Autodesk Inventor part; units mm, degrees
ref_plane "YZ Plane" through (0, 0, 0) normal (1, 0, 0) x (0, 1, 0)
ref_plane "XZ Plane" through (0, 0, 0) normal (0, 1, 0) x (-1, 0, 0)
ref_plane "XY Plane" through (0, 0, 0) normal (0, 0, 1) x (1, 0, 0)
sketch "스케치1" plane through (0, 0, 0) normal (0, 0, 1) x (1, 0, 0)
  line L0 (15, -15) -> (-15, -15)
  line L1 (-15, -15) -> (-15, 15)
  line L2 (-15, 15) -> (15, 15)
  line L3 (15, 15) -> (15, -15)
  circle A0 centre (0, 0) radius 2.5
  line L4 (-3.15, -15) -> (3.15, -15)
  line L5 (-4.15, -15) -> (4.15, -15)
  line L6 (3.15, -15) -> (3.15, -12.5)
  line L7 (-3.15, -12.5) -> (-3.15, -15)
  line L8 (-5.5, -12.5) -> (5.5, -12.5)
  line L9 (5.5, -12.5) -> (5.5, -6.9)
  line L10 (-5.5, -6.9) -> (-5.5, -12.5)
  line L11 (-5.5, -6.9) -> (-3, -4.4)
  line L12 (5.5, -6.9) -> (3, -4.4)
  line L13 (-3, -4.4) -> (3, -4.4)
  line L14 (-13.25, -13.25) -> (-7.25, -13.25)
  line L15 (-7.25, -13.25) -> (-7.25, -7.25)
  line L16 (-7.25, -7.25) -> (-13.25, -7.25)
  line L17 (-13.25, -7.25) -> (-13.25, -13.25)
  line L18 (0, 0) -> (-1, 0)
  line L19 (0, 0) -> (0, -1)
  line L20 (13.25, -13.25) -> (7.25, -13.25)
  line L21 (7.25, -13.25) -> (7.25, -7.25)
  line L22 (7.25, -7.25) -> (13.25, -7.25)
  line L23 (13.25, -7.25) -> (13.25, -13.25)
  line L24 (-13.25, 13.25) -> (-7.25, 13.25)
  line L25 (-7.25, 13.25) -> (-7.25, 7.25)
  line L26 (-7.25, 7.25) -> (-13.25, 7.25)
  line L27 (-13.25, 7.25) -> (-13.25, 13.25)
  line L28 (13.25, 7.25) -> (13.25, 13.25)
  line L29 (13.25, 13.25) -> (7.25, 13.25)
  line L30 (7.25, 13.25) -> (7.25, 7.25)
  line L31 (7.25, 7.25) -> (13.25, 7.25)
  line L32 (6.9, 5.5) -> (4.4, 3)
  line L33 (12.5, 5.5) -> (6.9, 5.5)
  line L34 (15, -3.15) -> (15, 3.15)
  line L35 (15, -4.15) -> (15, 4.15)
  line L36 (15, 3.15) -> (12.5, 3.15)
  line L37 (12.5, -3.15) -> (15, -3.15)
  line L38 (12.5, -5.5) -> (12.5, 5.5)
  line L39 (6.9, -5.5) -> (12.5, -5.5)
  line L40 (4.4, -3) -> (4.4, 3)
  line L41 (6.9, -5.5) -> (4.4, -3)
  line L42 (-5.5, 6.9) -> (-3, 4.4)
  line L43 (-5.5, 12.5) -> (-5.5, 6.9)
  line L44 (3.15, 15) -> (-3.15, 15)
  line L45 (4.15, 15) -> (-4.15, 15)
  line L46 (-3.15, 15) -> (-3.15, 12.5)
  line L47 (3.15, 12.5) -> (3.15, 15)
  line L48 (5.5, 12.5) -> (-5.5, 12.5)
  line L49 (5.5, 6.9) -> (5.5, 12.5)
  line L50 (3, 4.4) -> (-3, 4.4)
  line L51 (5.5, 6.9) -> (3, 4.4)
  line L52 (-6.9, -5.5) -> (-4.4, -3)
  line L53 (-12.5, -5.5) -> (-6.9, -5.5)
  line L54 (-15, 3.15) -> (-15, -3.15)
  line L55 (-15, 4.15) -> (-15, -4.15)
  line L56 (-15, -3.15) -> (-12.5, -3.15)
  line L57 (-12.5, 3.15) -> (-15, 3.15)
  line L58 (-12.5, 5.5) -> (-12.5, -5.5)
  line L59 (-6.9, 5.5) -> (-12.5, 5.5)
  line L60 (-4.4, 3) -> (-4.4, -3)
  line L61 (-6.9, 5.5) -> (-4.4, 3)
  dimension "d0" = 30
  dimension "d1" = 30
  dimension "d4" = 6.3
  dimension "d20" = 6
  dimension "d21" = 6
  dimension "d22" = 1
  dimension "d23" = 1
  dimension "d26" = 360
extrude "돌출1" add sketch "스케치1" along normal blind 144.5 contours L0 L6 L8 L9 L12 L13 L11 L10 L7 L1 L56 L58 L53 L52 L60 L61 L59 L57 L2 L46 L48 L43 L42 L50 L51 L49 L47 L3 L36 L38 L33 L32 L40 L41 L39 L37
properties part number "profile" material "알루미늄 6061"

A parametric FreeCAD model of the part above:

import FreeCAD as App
import Part
import Sketcher

doc = App.newDocument("Part")
params = doc.addObject("Spreadsheet::Sheet", "Params")
for row, (alias, value) in enumerate([
    ("sketch1_width", "6 mm"),
    ("sketch1_diameter", "5 mm"),
    ("sketch1_width2", "2.5 mm"),
    ("sketch1_width3", "5.6 mm"),
    ("sketch1_width4", "11.85 mm"),
    ("pad1_length", "144.5 mm"),
], start=1):
    params.set(f"A{row}", alias)
    params.set(f"B{row}", "=" + value)
    params.setAlias(f"B{row}", alias)

body = doc.addObject("PartDesign::Body", "Body")

sketch1 = body.newObject("Sketcher::SketchObject", "Sketch")
sketch1.AttachmentSupport = (doc.getObject("XY_Plane"), [""])
sketch1.MapMode = "FlatFace"
sketch1.addGeometry([
    Part.LineSegment(App.Vector(3.15, -15, 0), App.Vector(15, -15, 0)),
    Part.LineSegment(App.Vector(15, -15, 0), App.Vector(15, -3.15, 0)),
    Part.LineSegment(App.Vector(15, -3.15, 0), App.Vector(12.5, -3.15, 0)),
    Part.LineSegment(App.Vector(12.5, -3.15, 0), App.Vector(12.5, -5.5, 0)),
    Part.LineSegment(App.Vector(12.5, -5.5, 0), App.Vector(6.9, -5.5, 0)),
    Part.LineSegment(App.Vector(6.9, -5.5, 0), App.Vector(4.4, -3, 0)),
    Part.LineSegment(App.Vector(4.4, -3, 0), App.Vector(4.4, 3, 0)),
    Part.LineSegment(App.Vector(4.4, 3, 0), App.Vector(6.9, 5.5, 0)),
    Part.LineSegment(App.Vector(6.9, 5.5, 0), App.Vector(12.5, 5.5, 0)),
    Part.LineSegment(App.Vector(12.5, 5.5, 0), App.Vector(12.5, 3.15, 0)),
    Part.LineSegment(App.Vector(12.5, 3.15, 0), App.Vector(15, 3.15, 0)),
    Part.LineSegment(App.Vector(15, 3.15, 0), App.Vector(15, 15, 0)),
    Part.LineSegment(App.Vector(15, 15, 0), App.Vector(3.15, 15, 0)),
    Part.LineSegment(App.Vector(3.15, 15, 0), App.Vector(3.15, 12.5, 0)),
    Part.LineSegment(App.Vector(3.15, 12.5, 0), App.Vector(5.5, 12.5, 0)),
    Part.LineSegment(App.Vector(5.5, 12.5, 0), App.Vector(5.5, 6.9, 0)),
    Part.LineSegment(App.Vector(5.5, 6.9, 0), App.Vector(3, 4.4, 0)),
    Part.LineSegment(App.Vector(3, 4.4, 0), App.Vector(-3, 4.4, 0)),
    Part.LineSegment(App.Vector(-3, 4.4, 0), App.Vector(-5.5, 6.9, 0)),
    Part.LineSegment(App.Vector(-5.5, 6.9, 0), App.Vector(-5.5, 12.5, 0)),
    Part.LineSegment(App.Vector(-5.5, 12.5, 0), App.Vector(-3.15, 12.5, 0)),
    Part.LineSegment(App.Vector(-3.15, 12.5, 0), App.Vector(-3.15, 15, 0)),
    Part.LineSegment(App.Vector(-3.15, 15, 0), App.Vector(-15, 15, 0)),
    Part.LineSegment(App.Vector(-15, 15, 0), App.Vector(-15, 3.15, 0)),
    Part.LineSegment(App.Vector(-15, 3.15, 0), App.Vector(-12.5, 3.15, 0)),
    Part.LineSegment(App.Vector(-12.5, 3.15, 0), App.Vector(-12.5, 5.5, 0)),
    Part.LineSegment(App.Vector(-12.5, 5.5, 0), App.Vector(-6.9, 5.5, 0)),
    Part.LineSegment(App.Vector(-6.9, 5.5, 0), App.Vector(-4.4, 3, 0)),
    Part.LineSegment(App.Vector(-4.4, 3, 0), App.Vector(-4.4, -3, 0)),
    Part.LineSegment(App.Vector(-4.4, -3, 0), App.Vector(-6.9, -5.5, 0)),
    Part.LineSegment(App.Vector(-6.9, -5.5, 0), App.Vector(-12.5, -5.5, 0)),
    Part.LineSegment(App.Vector(-12.5, -5.5, 0), App.Vector(-12.5, -3.15, 0)),
    Part.LineSegment(App.Vector(-12.5, -3.15, 0), App.Vector(-15, -3.15, 0)),
    Part.LineSegment(App.Vector(-15, -3.15, 0), App.Vector(-15, -15, 0)),
    Part.LineSegment(App.Vector(-15, -15, 0), App.Vector(-3.15, -15, 0)),
    Part.LineSegment(App.Vector(-3.15, -15, 0), App.Vector(-3.15, -12.5, 0)),
    Part.LineSegment(App.Vector(-3.15, -12.5, 0), App.Vector(-5.5, -12.5, 0)),
    Part.LineSegment(App.Vector(-5.5, -12.5, 0), App.Vector(-5.5, -6.9, 0)),
    Part.LineSegment(App.Vector(-5.5, -6.9, 0), App.Vector(-3, -4.4, 0)),
    Part.LineSegment(App.Vector(-3, -4.4, 0), App.Vector(3, -4.4, 0)),
    Part.LineSegment(App.Vector(3, -4.4, 0), App.Vector(5.5, -6.9, 0)),
    Part.LineSegment(App.Vector(5.5, -6.9, 0), App.Vector(5.5, -12.5, 0)),
    Part.LineSegment(App.Vector(5.5, -12.5, 0), App.Vector(3.15, -12.5, 0)),
    Part.LineSegment(App.Vector(3.15, -12.5, 0), App.Vector(3.15, -15, 0)),
    Part.LineSegment(App.Vector(-7.25, -13.25, 0), App.Vector(-13.25, -13.25, 0)),
    Part.LineSegment(App.Vector(-13.25, -13.25, 0), App.Vector(-13.25, -7.25, 0)),
    Part.LineSegment(App.Vector(-13.25, -7.25, 0), App.Vector(-7.25, -7.25, 0)),
    Part.LineSegment(App.Vector(-7.25, -7.25, 0), App.Vector(-7.25, -13.25, 0)),
    Part.LineSegment(App.Vector(13.25, -7.25, 0), App.Vector(13.25, -13.25, 0)),
    Part.LineSegment(App.Vector(13.25, -13.25, 0), App.Vector(7.25, -13.25, 0)),
    Part.LineSegment(App.Vector(7.25, -13.25, 0), App.Vector(7.25, -7.25, 0)),
    Part.LineSegment(App.Vector(7.25, -7.25, 0), App.Vector(13.25, -7.25, 0)),
    Part.LineSegment(App.Vector(-13.25, 7.25, 0), App.Vector(-13.25, 13.25, 0)),
    Part.LineSegment(App.Vector(-13.25, 13.25, 0), App.Vector(-7.25, 13.25, 0)),
    Part.LineSegment(App.Vector(-7.25, 13.25, 0), App.Vector(-7.25, 7.25, 0)),
    Part.LineSegment(App.Vector(-7.25, 7.25, 0), App.Vector(-13.25, 7.25, 0)),
    Part.Circle(App.Vector(0, 0, 0), App.Vector(0, 0, 1), 2.5),
    Part.LineSegment(App.Vector(13.25, 13.25, 0), App.Vector(13.25, 7.25, 0)),
    Part.LineSegment(App.Vector(13.25, 7.25, 0), App.Vector(7.25, 7.25, 0)),
    Part.LineSegment(App.Vector(7.25, 7.25, 0), App.Vector(7.25, 13.25, 0)),
    Part.LineSegment(App.Vector(7.25, 13.25, 0), App.Vector(13.25, 13.25, 0)),
], False)
sketch1.addConstraint([
    Sketcher.Constraint("Coincident", 0, 2, 1, 1),
    Sketcher.Constraint("Coincident", 1, 2, 2, 1),
    Sketcher.Constraint("Coincident", 2, 2, 3, 1),
    Sketcher.Constraint("Coincident", 3, 2, 4, 1),
    Sketcher.Constraint("Coincident", 4, 2, 5, 1),
    Sketcher.Constraint("Coincident", 5, 2, 6, 1),
    Sketcher.Constraint("Coincident", 6, 2, 7, 1),
    Sketcher.Constraint("Coincident", 7, 2, 8, 1),
    Sketcher.Constraint("Coincident", 8, 2, 9, 1),
    Sketcher.Constraint("Coincident", 9, 2, 10, 1),
    Sketcher.Constraint("Coincident", 10, 2, 11, 1),
    Sketcher.Constraint("Coincident", 11, 2, 12, 1),
    Sketcher.Constraint("Coincident", 12, 2, 13, 1),
    Sketcher.Constraint("Coincident", 13, 2, 14, 1),
    Sketcher.Constraint("Coincident", 14, 2, 15, 1),
    Sketcher.Constraint("Coincident", 15, 2, 16, 1),
    Sketcher.Constraint("Coincident", 16, 2, 17, 1),
    Sketcher.Constraint("Coincident", 17, 2, 18, 1),
    Sketcher.Constraint("Coincident", 18, 2, 19, 1),
    Sketcher.Constraint("Coincident", 19, 2, 20, 1),
    Sketcher.Constraint("Coincident", 20, 2, 21, 1),
    Sketcher.Constraint("Coincident", 21, 2, 22, 1),
    Sketcher.Constraint("Coincident", 22, 2, 23, 1),
    Sketcher.Constraint("Coincident", 23, 2, 24, 1),
    Sketcher.Constraint("Coincident", 24, 2, 25, 1),
    Sketcher.Constraint("Coincident", 25, 2, 26, 1),
    Sketcher.Constraint("Coincident", 26, 2, 27, 1),
    Sketcher.Constraint("Coincident", 27, 2, 28, 1),
    Sketcher.Constraint("Coincident", 28, 2, 29, 1),
    Sketcher.Constraint("Coincident", 29, 2, 30, 1),
    Sketcher.Constraint("Coincident", 30, 2, 31, 1),
    Sketcher.Constraint("Coincident", 31, 2, 32, 1),
    Sketcher.Constraint("Coincident", 32, 2, 33, 1),
    Sketcher.Constraint("Coincident", 33, 2, 34, 1),
    Sketcher.Constraint("Coincident", 34, 2, 35, 1),
    Sketcher.Constraint("Coincident", 35, 2, 36, 1),
    Sketcher.Constraint("Coincident", 36, 2, 37, 1),
    Sketcher.Constraint("Coincident", 37, 2, 38, 1),
    Sketcher.Constraint("Coincident", 38, 2, 39, 1),
    Sketcher.Constraint("Coincident", 39, 2, 40, 1),
    Sketcher.Constraint("Coincident", 40, 2, 41, 1),
    Sketcher.Constraint("Coincident", 41, 2, 42, 1),
    Sketcher.Constraint("Coincident", 42, 2, 43, 1),
    Sketcher.Constraint("Coincident", 43, 2, 0, 1),
    Sketcher.Constraint("Coincident", 44, 2, 45, 1),
    Sketcher.Constraint("Coincident", 45, 2, 46, 1),
    Sketcher.Constraint("Coincident", 46, 2, 47, 1),
    Sketcher.Constraint("Coincident", 47, 2, 44, 1),
    Sketcher.Constraint("Coincident", 48, 2, 49, 1),
    Sketcher.Constraint("Coincident", 49, 2, 50, 1),
    Sketcher.Constraint("Coincident", 50, 2, 51, 1),
    Sketcher.Constraint("Coincident", 51, 2, 48, 1),
    Sketcher.Constraint("Coincident", 52, 2, 53, 1),
    Sketcher.Constraint("Coincident", 53, 2, 54, 1),
    Sketcher.Constraint("Coincident", 54, 2, 55, 1),
    Sketcher.Constraint("Coincident", 55, 2, 52, 1),
    Sketcher.Constraint("Coincident", 57, 2, 58, 1),
    Sketcher.Constraint("Coincident", 58, 2, 59, 1),
    Sketcher.Constraint("Coincident", 59, 2, 60, 1),
    Sketcher.Constraint("Coincident", 60, 2, 57, 1),
    Sketcher.Constraint("Horizontal", 0),
    Sketcher.Constraint("Vertical", 1),
    Sketcher.Constraint("Horizontal", 2),
    Sketcher.Constraint("Vertical", 3),
    Sketcher.Constraint("Horizontal", 4),
    Sketcher.Constraint("Vertical", 6),
    Sketcher.Constraint("Horizontal", 8),
    Sketcher.Constraint("Vertical", 9),
    Sketcher.Constraint("Horizontal", 10),
    Sketcher.Constraint("Vertical", 11),
    Sketcher.Constraint("Horizontal", 12),
    Sketcher.Constraint("Vertical", 13),
    Sketcher.Constraint("Horizontal", 14),
    Sketcher.Constraint("Vertical", 15),
    Sketcher.Constraint("Horizontal", 17),
    Sketcher.Constraint("Vertical", 19),
    Sketcher.Constraint("Horizontal", 20),
    Sketcher.Constraint("Vertical", 21),
    Sketcher.Constraint("Horizontal", 22),
    Sketcher.Constraint("Vertical", 23),
    Sketcher.Constraint("Horizontal", 24),
    Sketcher.Constraint("Vertical", 25),
    Sketcher.Constraint("Horizontal", 26),
    Sketcher.Constraint("Vertical", 28),
    Sketcher.Constraint("Horizontal", 30),
    Sketcher.Constraint("Vertical", 31),
    Sketcher.Constraint("Horizontal", 32),
    Sketcher.Constraint("Vertical", 33),
    Sketcher.Constraint("Horizontal", 34),
    Sketcher.Constraint("Vertical", 35),
    Sketcher.Constraint("Horizontal", 36),
    Sketcher.Constraint("Vertical", 37),
    Sketcher.Constraint("Horizontal", 39),
    Sketcher.Constraint("Vertical", 41),
    Sketcher.Constraint("Horizontal", 42),
    Sketcher.Constraint("Vertical", 43),
    Sketcher.Constraint("Horizontal", 44),
    Sketcher.Constraint("Vertical", 45),
    Sketcher.Constraint("Horizontal", 46),
    Sketcher.Constraint("Vertical", 47),
    Sketcher.Constraint("Vertical", 48),
    Sketcher.Constraint("Horizontal", 49),
    Sketcher.Constraint("Vertical", 50),
    Sketcher.Constraint("Horizontal", 51),
    Sketcher.Constraint("Vertical", 52),
    Sketcher.Constraint("Horizontal", 53),
    Sketcher.Constraint("Vertical", 54),
    Sketcher.Constraint("Horizontal", 55),
    Sketcher.Constraint("Vertical", 57),
    Sketcher.Constraint("Horizontal", 58),
    Sketcher.Constraint("Vertical", 59),
    Sketcher.Constraint("Horizontal", 60),
    Sketcher.Constraint("Coincident", 56, 3, -1, 1),
    Sketcher.Constraint("Symmetric", 0, 2, 22, 2, -1, 1),
    Sketcher.Constraint("Symmetric", 2, 2, 24, 2, -1, 1),
    Sketcher.Constraint("Symmetric", 4, 2, 26, 2, -1, 1),
    Sketcher.Constraint("Symmetric", 5, 2, 27, 2, -1, 1),
    Sketcher.Constraint("Symmetric", 7, 2, 29, 2, -1, 1),
    Sketcher.Constraint("Symmetric", 9, 2, 31, 2, -1, 1),
    Sketcher.Constraint("Symmetric", 11, 2, 33, 2, -1, 1),
    Sketcher.Constraint("Symmetric", 13, 2, 35, 2, -1, 1),
    Sketcher.Constraint("Symmetric", 15, 2, 37, 2, -1, 1),
    Sketcher.Constraint("Symmetric", 16, 2, 38, 2, -1, 1),
    Sketcher.Constraint("Symmetric", 18, 2, 40, 2, -1, 1),
    Sketcher.Constraint("Symmetric", 20, 2, 42, 2, -1, 1),
    Sketcher.Constraint("Symmetric", 48, 2, 52, 2, -1, 1),
    Sketcher.Constraint("Symmetric", 50, 2, 54, 2, -1, 1),
    Sketcher.Constraint("Symmetric", 45, 2, 57, 2, -1, 1),
    Sketcher.Constraint("Symmetric", 47, 2, 59, 2, -1, 1),
    Sketcher.Constraint("Symmetric", 15, 2, 18, 2, -2),
    Sketcher.Constraint("Symmetric", 13, 2, 20, 2, -2),
    Sketcher.Constraint("Symmetric", 11, 2, 22, 2, -2),
    Sketcher.Constraint("Symmetric", 9, 2, 24, 2, -2),
    Sketcher.Constraint("Symmetric", 7, 2, 26, 2, -2),
    Sketcher.Constraint("Symmetric", 44, 2, 48, 2, -2),
    Sketcher.Constraint("Symmetric", 46, 2, 50, 2, -2),
    Sketcher.Constraint("Perpendicular", 5, 7),
    Sketcher.Constraint("Parallel", 7, 16),
    Sketcher.Constraint("Perpendicular", 16, 18),
    Sketcher.Constraint("Perpendicular", 27, 29),
    Sketcher.Constraint("Perpendicular", 38, 40),
    Sketcher.Constraint("Horizontal", 6, 2, 27, 2),
    Sketcher.Constraint("Equal", 39, 44),
    Sketcher.Constraint("Equal", 34, 1),
    Sketcher.Constraint("Equal", 42, 3),
    Sketcher.Constraint("Equal", 60, 6),
    Sketcher.Constraint("Equal", 32, 13),
    Sketcher.Constraint("Equal", 30, 15),
    Sketcher.Constraint("Equal", 28, 45),
    Sketcher.Constraint("Equal", 7, 16),
    Sketcher.Constraint("DistanceX", 17, 2, 17, 1, 6.0),
    Sketcher.Constraint("Diameter", 56, 5.0),
    Sketcher.Constraint("DistanceX", 2, 2, 2, 1, 2.5),
    Sketcher.Constraint("DistanceX", 4, 2, 4, 1, 5.6),
    Sketcher.Constraint("DistanceX", -1, 1, 0, 2, 15.0),
    Sketcher.Constraint("DistanceX", 0, 1, 0, 2, 11.85),
    Sketcher.Constraint("DistanceX", 14, 1, 14, 2, 2.35),
    Sketcher.Constraint("DistanceX", 44, 2, -1, 1, 13.25),
    Sketcher.Constraint("DistanceY", 44, 2, -1, 1, 13.25),
])
sketch1.setExpression("Constraints[150]", "Params.sketch1_width")
sketch1.setExpression("Constraints[151]", "Params.sketch1_diameter")
sketch1.setExpression("Constraints[152]", "Params.sketch1_width2")
sketch1.setExpression("Constraints[153]", "Params.sketch1_width3")
sketch1.setExpression("Constraints[155]", "Params.sketch1_width4")
pad1 = body.newObject("PartDesign::Pad", "Pad")
pad1.Profile = sketch1
pad1.setExpression("Length", "Params.pad1_length")

doc.recompute()
